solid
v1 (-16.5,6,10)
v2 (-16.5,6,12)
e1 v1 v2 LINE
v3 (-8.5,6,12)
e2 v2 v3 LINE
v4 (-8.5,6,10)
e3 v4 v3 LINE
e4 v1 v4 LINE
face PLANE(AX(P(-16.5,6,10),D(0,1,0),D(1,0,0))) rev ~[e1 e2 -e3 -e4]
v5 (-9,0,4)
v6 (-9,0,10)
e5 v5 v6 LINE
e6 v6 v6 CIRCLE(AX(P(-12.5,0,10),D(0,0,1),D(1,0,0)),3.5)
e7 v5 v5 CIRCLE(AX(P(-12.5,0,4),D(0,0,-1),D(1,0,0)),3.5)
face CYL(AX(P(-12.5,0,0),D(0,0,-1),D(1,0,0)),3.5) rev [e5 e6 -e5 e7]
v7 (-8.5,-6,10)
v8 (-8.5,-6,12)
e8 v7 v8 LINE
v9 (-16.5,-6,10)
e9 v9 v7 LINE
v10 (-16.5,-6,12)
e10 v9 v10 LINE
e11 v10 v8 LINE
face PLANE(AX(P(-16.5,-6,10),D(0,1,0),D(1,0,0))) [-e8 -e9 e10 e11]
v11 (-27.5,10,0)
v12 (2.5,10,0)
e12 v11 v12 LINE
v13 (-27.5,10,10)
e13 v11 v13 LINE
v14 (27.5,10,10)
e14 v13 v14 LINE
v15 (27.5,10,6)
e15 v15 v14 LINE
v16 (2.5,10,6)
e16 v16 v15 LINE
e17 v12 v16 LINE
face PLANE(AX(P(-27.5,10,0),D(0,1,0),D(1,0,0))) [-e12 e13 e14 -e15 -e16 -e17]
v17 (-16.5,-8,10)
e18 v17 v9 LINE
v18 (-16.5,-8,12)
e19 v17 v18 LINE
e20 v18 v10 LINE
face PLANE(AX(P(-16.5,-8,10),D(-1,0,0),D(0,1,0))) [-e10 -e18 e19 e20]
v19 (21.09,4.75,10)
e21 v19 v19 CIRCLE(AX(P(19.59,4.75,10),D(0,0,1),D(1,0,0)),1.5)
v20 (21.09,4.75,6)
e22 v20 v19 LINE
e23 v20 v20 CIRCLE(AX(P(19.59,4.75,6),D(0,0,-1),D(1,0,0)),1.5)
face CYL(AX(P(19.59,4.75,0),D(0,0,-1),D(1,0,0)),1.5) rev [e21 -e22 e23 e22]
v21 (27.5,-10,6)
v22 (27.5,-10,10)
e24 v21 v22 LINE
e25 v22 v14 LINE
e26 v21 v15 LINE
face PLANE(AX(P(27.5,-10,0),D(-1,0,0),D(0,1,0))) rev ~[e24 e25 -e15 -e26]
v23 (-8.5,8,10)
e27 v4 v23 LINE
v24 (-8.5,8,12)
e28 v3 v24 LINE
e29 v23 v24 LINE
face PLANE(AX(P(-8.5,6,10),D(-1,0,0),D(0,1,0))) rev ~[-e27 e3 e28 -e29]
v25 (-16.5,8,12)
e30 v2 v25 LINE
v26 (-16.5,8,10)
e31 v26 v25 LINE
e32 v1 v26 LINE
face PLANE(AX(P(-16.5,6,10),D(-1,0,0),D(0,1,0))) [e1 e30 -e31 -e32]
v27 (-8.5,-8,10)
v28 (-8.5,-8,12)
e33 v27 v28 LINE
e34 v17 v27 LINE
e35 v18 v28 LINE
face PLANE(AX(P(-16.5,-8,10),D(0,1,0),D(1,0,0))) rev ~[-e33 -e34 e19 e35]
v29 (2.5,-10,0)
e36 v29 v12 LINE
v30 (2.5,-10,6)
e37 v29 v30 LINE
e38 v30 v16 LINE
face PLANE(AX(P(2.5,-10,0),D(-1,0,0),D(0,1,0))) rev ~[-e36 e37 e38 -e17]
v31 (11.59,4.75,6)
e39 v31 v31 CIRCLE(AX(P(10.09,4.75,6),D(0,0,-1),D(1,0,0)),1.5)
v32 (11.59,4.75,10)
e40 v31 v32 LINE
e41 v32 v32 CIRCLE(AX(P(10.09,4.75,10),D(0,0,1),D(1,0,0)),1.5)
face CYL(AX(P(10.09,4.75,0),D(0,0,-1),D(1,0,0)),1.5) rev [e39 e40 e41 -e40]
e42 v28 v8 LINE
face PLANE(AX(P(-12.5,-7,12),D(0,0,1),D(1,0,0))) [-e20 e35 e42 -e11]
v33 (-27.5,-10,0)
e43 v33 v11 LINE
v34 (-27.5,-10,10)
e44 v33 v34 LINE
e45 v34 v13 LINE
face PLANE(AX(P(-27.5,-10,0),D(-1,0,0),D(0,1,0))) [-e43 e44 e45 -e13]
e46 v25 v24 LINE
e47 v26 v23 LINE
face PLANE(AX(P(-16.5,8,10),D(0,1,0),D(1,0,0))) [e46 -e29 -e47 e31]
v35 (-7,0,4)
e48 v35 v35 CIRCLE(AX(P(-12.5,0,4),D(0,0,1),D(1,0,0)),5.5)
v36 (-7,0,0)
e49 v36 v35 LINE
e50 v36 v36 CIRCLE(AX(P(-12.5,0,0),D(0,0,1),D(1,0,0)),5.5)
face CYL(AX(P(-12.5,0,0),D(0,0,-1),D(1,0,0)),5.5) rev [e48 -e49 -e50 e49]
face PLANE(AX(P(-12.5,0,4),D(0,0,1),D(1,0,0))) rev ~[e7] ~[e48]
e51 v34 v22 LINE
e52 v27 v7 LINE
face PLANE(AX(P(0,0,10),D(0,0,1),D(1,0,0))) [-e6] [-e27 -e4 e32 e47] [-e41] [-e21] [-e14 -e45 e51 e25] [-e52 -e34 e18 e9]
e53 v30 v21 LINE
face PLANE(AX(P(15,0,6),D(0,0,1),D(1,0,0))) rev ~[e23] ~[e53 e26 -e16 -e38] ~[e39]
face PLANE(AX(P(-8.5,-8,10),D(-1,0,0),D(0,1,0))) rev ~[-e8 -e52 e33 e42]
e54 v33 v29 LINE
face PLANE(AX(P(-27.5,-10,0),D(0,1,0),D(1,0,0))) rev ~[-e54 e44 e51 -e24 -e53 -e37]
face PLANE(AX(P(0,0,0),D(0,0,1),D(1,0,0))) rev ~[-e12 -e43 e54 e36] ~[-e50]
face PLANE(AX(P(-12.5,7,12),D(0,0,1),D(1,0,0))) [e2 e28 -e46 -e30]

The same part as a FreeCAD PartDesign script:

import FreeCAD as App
import Part
import Sketcher

V = App.Vector
Q = App.Units.Quantity

doc = App.newDocument("Part")
body = doc.addObject("PartDesign::Body", "Body")

# Sketch on XY plane
sketch1 = doc.addObject("Sketcher::SketchObject", "Sketch")
body.addObject(sketch1)
sketch1.AttachmentSupport = (doc.XY_Plane, [""])
sketch1.MapMode = "FlatFace"
sketch1.addGeometry(Part.LineSegment(V(-27.5, 10, 0), V(-27.5, -10, 0)), False)
sketch1.addGeometry(Part.LineSegment(V(-27.5, -10, 0), V(27.5, -10, 0)), False)
sketch1.addGeometry(Part.LineSegment(V(27.5, -10, 0), V(27.5, 10, 0)), False)
sketch1.addGeometry(Part.LineSegment(V(27.5, 10, 0), V(-27.5, 10, 0)), False)
sketch1.addGeometry(Part.Circle(V(-12.5, 0, 0), V(0, 0, 1), 3.5), False)
sketch1.addGeometry(Part.Circle(V(10.09, 4.75, 0), V(0, 0, 1), 1.5), False)
sketch1.addGeometry(Part.Circle(V(19.59, 4.75, 0), V(0, 0, 1), 1.5), False)
sketch1.addConstraint(Sketcher.Constraint("Coincident", 0, 2, 1, 1))
sketch1.addConstraint(Sketcher.Constraint("Coincident", 1, 2, 2, 1))
sketch1.addConstraint(Sketcher.Constraint("Coincident", 2, 2, 3, 1))
sketch1.addConstraint(Sketcher.Constraint("Coincident", 3, 2, 0, 1))
sketch1.addConstraint(Sketcher.Constraint("Vertical", 0))
sketch1.addConstraint(Sketcher.Constraint("Horizontal", 1))
sketch1.addConstraint(Sketcher.Constraint("Vertical", 2))
sketch1.addConstraint(Sketcher.Constraint("Horizontal", 3))
sketch1.addConstraint(Sketcher.Constraint("Equal", 5, 6))
sketch1.addConstraint(Sketcher.Constraint("Symmetric", 0, 2, 2, 2, -1, 1))
sketch1.addConstraint(Sketcher.Constraint("PointOnObject", 4, 3, -1))
sketch1.addConstraint(Sketcher.Constraint("Horizontal", 5, 3, 6, 3))
sketch1.addConstraint(Sketcher.Constraint("Diameter", 4, Q("7 mm")))
sketch1.addConstraint(Sketcher.Constraint("Diameter", 5, Q("3 mm")))
sketch1.addConstraint(Sketcher.Constraint("DistanceX", 1, 1, 1, 2, Q("55 mm")))
sketch1.addConstraint(Sketcher.Constraint("DistanceY", 0, 2, 0, 1, Q("20 mm")))
sketch1.addConstraint(Sketcher.Constraint("DistanceX", 0, 2, 4, 3, Q("15 mm")))
sketch1.addConstraint(Sketcher.Constraint("DistanceX", 5, 3, 6, 3, Q("9.5 mm")))
sketch1.addConstraint(Sketcher.Constraint("DistanceX", -1, 1, 5, 3, Q("10.09 mm")))
sketch1.addConstraint(Sketcher.Constraint("DistanceY", -1, 1, 5, 3, Q("4.75 mm")))
pad1 = doc.addObject("PartDesign::Pad", "Pad")
body.addObject(pad1)
pad1.Profile = sketch1
pad1.Length = 10

# Sketch on XY plane
sketch2 = doc.addObject("Sketcher::SketchObject", "Sketch001")
body.addObject(sketch2)
sketch2.AttachmentSupport = (doc.XY_Plane, [""])
sketch2.MapMode = "FlatFace"
sketch2.AttachmentOffset = App.Placement(V(0, 0, 10), App.Rotation())
sketch2.addGeometry(Part.LineSegment(V(-16.5, 8, 0), V(-16.5, 6, 0)), False)
sketch2.addGeometry(Part.LineSegment(V(-16.5, 6, 0), V(-8.5, 6, 0)), False)
sketch2.addGeometry(Part.LineSegment(V(-8.5, 6, 0), V(-8.5, 8, 0)), False)
sketch2.addGeometry(Part.LineSegment(V(-8.5, 8, 0), V(-16.5, 8, 0)), False)
sketch2.addGeometry(Part.LineSegment(V(-16.5, -6, 0), V(-16.5, -8, 0)), False)
sketch2.addGeometry(Part.LineSegment(V(-16.5, -8, 0), V(-8.5, -8, 0)), False)
sketch2.addGeometry(Part.LineSegment(V(-8.5, -8, 0), V(-8.5, -6, 0)), False)
sketch2.addGeometry(Part.LineSegment(V(-8.5, -6, 0), V(-16.5, -6, 0)), False)
sketch2.addConstraint(Sketcher.Constraint("Coincident", 0, 2, 1, 1))
sketch2.addConstraint(Sketcher.Constraint("Coincident", 1, 2, 2, 1))
sketch2.addConstraint(Sketcher.Constraint("Coincident", 2, 2, 3, 1))
sketch2.addConstraint(Sketcher.Constraint("Coincident", 3, 2, 0, 1))
sketch2.addConstraint(Sketcher.Constraint("Coincident", 4, 2, 5, 1))
sketch2.addConstraint(Sketcher.Constraint("Coincident", 5, 2, 6, 1))
sketch2.addConstraint(Sketcher.Constraint("Coincident", 6, 2, 7, 1))
sketch2.addConstraint(Sketcher.Constraint("Coincident", 7, 2, 4, 1))
sketch2.addConstraint(Sketcher.Constraint("Vertical", 0))
sketch2.addConstraint(Sketcher.Constraint("Horizontal", 1))
sketch2.addConstraint(Sketcher.Constraint("Vertical", 2))
sketch2.addConstraint(Sketcher.Constraint("Horizontal", 3))
sketch2.addConstraint(Sketcher.Constraint("Vertical", 4))
sketch2.addConstraint(Sketcher.Constraint("Horizontal", 5))
sketch2.addConstraint(Sketcher.Constraint("Vertical", 6))
sketch2.addConstraint(Sketcher.Constraint("Horizontal", 7))
sketch2.addConstraint(Sketcher.Constraint("Symmetric", 3, 2, 4, 2, -1))
sketch2.addConstraint(Sketcher.Constraint("Symmetric", 1, 2, 6, 2, -1))
sketch2.addConstraint(Sketcher.Constraint("DistanceX", 1, 1, 1, 2, Q("8 mm")))
sketch2.addConstraint(Sketcher.Constraint("DistanceY", 0, 2, 0, 1, Q("2 mm")))
sketch2.addConstraint(Sketcher.Constraint("DistanceY", -1, 1, 0, 2, Q("6 mm")))
sketch2.addConstraint(Sketcher.Constraint("DistanceX", 0, 2, -1, 1, Q("16.5 mm")))
pad2 = doc.addObject("PartDesign::Pad", "Pad001")
body.addObject(pad2)
pad2.Profile = sketch2
pad2.Length = 2

# Sketch on XY plane
sketch3 = doc.addObject("Sketcher::SketchObject", "Sketch002")
body.addObject(sketch3)
sketch3.AttachmentSupport = (doc.XY_Plane, [""])
sketch3.MapMode = "FlatFace"
sketch3.addGeometry(Part.Circle(V(-12.5, 0, 0), V(0, 0, 1), 5.5), False)
sketch3.addConstraint(Sketcher.Constraint("PointOnObject", 0, 3, -1))
sketch3.addConstraint(Sketcher.Constraint("Diameter", 0, Q("11 mm")))
sketch3.addConstraint(Sketcher.Constraint("DistanceX", 0, 3, -1, 1, Q("12.5 mm")))
pocket1 = doc.addObject("PartDesign::Pocket", "Pocket")
body.addObject(pocket1)
pocket1.Profile = sketch3
pocket1.Length = 4
pocket1.Reversed = True

# Sketch on XY plane
sketch4 = doc.addObject("Sketcher::SketchObject", "Sketch003")
body.addObject(sketch4)
sketch4.AttachmentSupport = (doc.XY_Plane, [""])
sketch4.MapMode = "FlatFace"
sketch4.addGeometry(Part.LineSegment(V(2.5, 10, 0), V(2.5, -10, 0)), False)
sketch4.addGeometry(Part.LineSegment(V(2.5, -10, 0), V(27.5, -10, 0)), False)
sketch4.addGeometry(Part.LineSegment(V(27.5, -10, 0), V(27.5, 10, 0)), False)
sketch4.addGeometry(Part.LineSegment(V(27.5, 10, 0), V(2.5, 10, 0)), False)
sketch4.addConstraint(Sketcher.Constraint("Coincident", 0, 2, 1, 1))
sketch4.addConstraint(Sketcher.Constraint("Coincident", 1, 2, 2, 1))
sketch4.addConstraint(Sketcher.Constraint("Coincident", 2, 2, 3, 1))
sketch4.addConstraint(Sketcher.Constraint("Coincident", 3, 2, 0, 1))
sketch4.addConstraint(Sketcher.Constraint("Vertical", 0))
sketch4.addConstraint(Sketcher.Constraint("Horizontal", 1))
sketch4.addConstraint(Sketcher.Constraint("Vertical", 2))
sketch4.addConstraint(Sketcher.Constraint("Horizontal", 3))
sketch4.addConstraint(Sketcher.Constraint("DistanceX", 1, 1, 1, 2, Q("25 mm")))
sketch4.addConstraint(Sketcher.Constraint("DistanceY", 0, 2, 0, 1, Q("20 mm")))
sketch4.addConstraint(Sketcher.Constraint("DistanceY", 0, 2, -1, 1, Q("10 mm")))
sketch4.addConstraint(Sketcher.Constraint("DistanceX", -1, 1, 0, 2, Q("2.5 mm")))
pocket2 = doc.addObject("PartDesign::Pocket", "Pocket001")
body.addObject(pocket2)
pocket2.Profile = sketch4
pocket2.Length = 6
pocket2.Reversed = True

doc.recompute()
